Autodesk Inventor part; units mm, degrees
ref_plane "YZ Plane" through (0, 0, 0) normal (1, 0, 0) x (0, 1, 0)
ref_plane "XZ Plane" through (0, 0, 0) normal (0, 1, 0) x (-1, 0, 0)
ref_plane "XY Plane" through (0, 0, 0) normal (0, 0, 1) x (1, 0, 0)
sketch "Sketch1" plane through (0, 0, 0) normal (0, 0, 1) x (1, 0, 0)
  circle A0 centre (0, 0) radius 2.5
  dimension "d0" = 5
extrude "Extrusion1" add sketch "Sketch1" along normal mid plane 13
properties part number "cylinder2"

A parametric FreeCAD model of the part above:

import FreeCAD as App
import Part
import Sketcher

V = App.Vector
Q = App.Units.Quantity

doc = App.newDocument("Part")
body = doc.addObject("PartDesign::Body", "Body")

# Sketch on XY plane
sketch1 = body.newObject("Sketcher::SketchObject", "Sketch")
sketch1.AttachmentSupport = (doc.getObject("XY_Plane"), [""])
sketch1.MapMode = "FlatFace"
sketch1.addGeometry(Part.Circle(V(0, 0, 0), V(0, 0, 1), 2.5), False)
sketch1.addConstraint(Sketcher.Constraint("Coincident", 0, 3, -1, 1))
sketch1.addConstraint(Sketcher.Constraint("Diameter", 0, Q("5 mm")))
pad1 = body.newObject("PartDesign::Pad", "Pad")
pad1.Profile = sketch1
pad1.Length = 13
pad1.Midplane = True

doc.recompute()
